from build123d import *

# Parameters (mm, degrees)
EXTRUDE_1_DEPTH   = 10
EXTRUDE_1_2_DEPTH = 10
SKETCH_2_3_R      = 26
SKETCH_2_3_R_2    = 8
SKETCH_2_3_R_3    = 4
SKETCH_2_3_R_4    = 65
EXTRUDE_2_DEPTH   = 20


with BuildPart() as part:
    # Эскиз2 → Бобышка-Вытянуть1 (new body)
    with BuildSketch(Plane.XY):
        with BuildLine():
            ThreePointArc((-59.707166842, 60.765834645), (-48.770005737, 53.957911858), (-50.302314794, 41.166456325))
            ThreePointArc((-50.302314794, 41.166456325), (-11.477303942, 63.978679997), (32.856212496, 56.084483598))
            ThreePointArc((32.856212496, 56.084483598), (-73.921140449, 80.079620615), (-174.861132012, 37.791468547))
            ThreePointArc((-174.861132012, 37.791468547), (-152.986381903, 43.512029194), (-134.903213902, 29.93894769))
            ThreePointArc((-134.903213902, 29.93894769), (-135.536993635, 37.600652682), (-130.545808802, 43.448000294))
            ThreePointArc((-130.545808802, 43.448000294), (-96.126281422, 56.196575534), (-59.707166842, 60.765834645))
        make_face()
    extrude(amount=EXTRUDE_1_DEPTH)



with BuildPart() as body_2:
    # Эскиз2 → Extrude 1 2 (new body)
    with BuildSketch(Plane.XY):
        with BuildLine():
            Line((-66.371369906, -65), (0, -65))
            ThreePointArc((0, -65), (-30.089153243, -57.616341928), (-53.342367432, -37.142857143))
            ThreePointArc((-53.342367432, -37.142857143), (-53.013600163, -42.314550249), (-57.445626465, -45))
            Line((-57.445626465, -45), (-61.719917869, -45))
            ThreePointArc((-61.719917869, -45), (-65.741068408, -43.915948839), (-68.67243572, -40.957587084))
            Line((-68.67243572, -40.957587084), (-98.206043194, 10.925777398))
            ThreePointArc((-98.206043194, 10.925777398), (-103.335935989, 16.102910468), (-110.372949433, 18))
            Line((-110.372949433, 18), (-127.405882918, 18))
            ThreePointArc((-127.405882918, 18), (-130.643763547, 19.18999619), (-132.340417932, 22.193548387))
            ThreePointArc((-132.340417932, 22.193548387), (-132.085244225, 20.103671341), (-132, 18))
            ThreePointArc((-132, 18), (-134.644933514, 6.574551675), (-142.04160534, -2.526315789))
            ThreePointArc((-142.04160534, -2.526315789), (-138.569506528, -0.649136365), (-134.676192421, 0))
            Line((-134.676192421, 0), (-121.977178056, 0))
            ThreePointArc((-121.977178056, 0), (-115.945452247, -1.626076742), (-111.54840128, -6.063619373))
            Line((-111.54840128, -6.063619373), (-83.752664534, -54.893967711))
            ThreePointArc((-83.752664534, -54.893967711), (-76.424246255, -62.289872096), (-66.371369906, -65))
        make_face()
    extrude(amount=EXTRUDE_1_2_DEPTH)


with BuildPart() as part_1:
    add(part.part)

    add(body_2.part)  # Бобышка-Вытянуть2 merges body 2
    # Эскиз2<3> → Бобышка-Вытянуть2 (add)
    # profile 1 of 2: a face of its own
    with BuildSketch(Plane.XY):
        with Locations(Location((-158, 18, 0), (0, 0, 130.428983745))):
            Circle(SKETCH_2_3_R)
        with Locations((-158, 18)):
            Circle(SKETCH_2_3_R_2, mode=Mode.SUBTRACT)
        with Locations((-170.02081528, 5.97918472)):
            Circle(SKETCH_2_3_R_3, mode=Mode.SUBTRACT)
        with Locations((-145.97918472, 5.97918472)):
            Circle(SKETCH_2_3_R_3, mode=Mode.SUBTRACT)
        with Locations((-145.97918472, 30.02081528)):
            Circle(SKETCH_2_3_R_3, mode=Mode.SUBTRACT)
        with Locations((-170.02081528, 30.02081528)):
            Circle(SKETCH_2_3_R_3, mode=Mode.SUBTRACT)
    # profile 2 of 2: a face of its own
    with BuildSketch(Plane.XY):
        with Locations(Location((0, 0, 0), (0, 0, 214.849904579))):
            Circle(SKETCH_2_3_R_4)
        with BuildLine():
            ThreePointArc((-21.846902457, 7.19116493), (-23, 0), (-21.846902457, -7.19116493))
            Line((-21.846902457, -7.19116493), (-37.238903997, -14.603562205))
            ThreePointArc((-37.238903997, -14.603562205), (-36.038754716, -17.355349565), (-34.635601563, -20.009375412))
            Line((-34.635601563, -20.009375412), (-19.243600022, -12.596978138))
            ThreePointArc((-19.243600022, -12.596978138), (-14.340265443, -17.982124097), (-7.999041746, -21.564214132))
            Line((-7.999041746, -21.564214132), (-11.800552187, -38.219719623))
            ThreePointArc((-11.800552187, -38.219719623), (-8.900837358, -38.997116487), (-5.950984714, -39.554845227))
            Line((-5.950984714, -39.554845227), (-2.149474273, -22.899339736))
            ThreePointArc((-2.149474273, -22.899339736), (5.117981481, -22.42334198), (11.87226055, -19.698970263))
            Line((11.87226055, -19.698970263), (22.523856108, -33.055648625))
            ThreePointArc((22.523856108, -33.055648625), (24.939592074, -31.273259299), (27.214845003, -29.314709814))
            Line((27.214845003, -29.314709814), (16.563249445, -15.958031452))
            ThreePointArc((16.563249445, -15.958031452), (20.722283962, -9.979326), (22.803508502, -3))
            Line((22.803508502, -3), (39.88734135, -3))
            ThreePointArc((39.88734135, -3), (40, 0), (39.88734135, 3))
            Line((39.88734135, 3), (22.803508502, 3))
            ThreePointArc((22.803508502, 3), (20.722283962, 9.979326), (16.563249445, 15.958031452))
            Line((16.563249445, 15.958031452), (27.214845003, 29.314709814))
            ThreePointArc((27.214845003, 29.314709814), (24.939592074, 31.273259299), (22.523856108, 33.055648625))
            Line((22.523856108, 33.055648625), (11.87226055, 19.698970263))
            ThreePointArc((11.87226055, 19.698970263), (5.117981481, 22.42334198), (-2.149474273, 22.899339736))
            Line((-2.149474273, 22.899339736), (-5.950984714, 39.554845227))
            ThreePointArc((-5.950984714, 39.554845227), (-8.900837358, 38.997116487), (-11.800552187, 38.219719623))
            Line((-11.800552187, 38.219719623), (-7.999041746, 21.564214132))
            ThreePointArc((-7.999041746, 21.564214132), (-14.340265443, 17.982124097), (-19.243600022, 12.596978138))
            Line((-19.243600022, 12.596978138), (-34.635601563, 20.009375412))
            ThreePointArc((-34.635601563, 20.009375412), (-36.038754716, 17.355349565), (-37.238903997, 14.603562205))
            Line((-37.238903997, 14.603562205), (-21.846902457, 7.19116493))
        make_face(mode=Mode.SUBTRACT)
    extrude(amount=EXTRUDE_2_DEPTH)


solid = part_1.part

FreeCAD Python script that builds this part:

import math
import FreeCAD as App
import Part
import Sketcher
from FreeCAD import Vector
Q = App.Units.Quantity

doc = App.newDocument("Part")
params = doc.addObject("Spreadsheet::Sheet", "Params")
for row, (alias, value) in enumerate([
    ("sketch1_radius", "12 mm"),
    ("sketch1_radius2", "65 mm"),
    ("sketch1_radius3", "180 mm"),
    ("sketch1_radius4", "26 mm"),
    ("sketch1_radius5", "10 mm"),
    ("pad1_length", "10 mm"),
    ("sketch2_radius", "65 mm"),
    ("sketch2_radius2", "5 mm"),
    ("sketch2_radius3", "8 mm"),
    ("sketch2_radius4", "14 mm"),
    ("sketch2_radius5", "26 mm"),
    ("pad2_length", "10 mm"),
    ("sketch3_diameter", "52 mm"),
    ("sketch3_diameter2", "8 mm"),
    ("sketch3_diameter3", "16 mm"),
    ("sketch3_diameter4", "130 mm"),
    ("sketch3_radius", "23 mm"),
    ("pad3_length", "20 mm"),
], start=1):
    params.set(f"A{row}", alias)
    params.set(f"B{row}", "=" + value)
    params.setAlias(f"B{row}", alias)

body = doc.addObject("PartDesign::Body", "Body")

sketch1 = body.newObject("Sketcher::SketchObject", "Sketch")
sketch1.AttachmentSupport = (doc.getObject("XY_Plane"), [""])
sketch1.MapMode = "FlatFace"
sketch1.addGeometry([
    Part.ArcOfCircle(Part.Circle(Vector(-60, 49, 0), Vector(0, 0, 1), 12), math.radians(-39), math.radians(91)),
    Part.ArcOfCircle(Part.Circle(Vector(0, 0, 0), Vector(0, 0, 1), 65), math.radians(60), math.radians(141)),
    Part.ArcOfCircle(Part.Circle(Vector(-58, -99, 0), Vector(0, 0, 1), 180), math.radians(60), math.radians(130)),
    Part.ArcOfCircle(Part.Circle(Vector(-158, 18, 0), Vector(0, 0, 1), 26), math.radians(27), math.radians(130)),
    Part.ArcOfCircle(Part.Circle(Vector(-126, 35, 0), Vector(0, 0, 1), 10), math.radians(117), math.radians(207)),
    Part.ArcOfCircle(Part.Circle(Vector(-58, -99, 0), Vector(0, 0, 1), 160), math.radians(91), math.radians(117)),
], False)
sketch1.addConstraint([
    Sketcher.Constraint("Tangent", 0, 1, 1, 2),
    Sketcher.Constraint("Tangent", 1, 1, 2, 1),
    Sketcher.Constraint("Tangent", 2, 2, 3, 2),
    Sketcher.Constraint("Tangent", 3, 1, 4, 2),
    Sketcher.Constraint("Tangent", 4, 1, 5, 2),
    Sketcher.Constraint("Tangent", 5, 1, 0, 2),
    Sketcher.Constraint("Coincident", 1, 3, -1, 1),
    Sketcher.Constraint("Coincident", 5, 3, 2, 3),
    Sketcher.Constraint("Radius", 0, Q("12 mm")),
    Sketcher.Constraint("Radius", 1, Q("65 mm")),
    Sketcher.Constraint("Radius", 2, Q("180 mm")),
    Sketcher.Constraint("Radius", 3, Q("26 mm")),
    Sketcher.Constraint("Radius", 4, Q("10 mm")),
    Sketcher.Constraint("Radius", 5, Q("160 mm")),
    Sketcher.Constraint("DistanceX", 3, 3, -1, 1, Q("158 mm")),
    Sketcher.Constraint("DistanceY", -1, 1, 3, 3, Q("18 mm")),
])
sketch1.setExpression("Constraints[8]", "Params.sketch1_radius")
sketch1.setExpression("Constraints[9]", "Params.sketch1_radius2")
sketch1.setExpression("Constraints[10]", "Params.sketch1_radius3")
sketch1.setExpression("Constraints[11]", "Params.sketch1_radius4")
sketch1.setExpression("Constraints[12]", "Params.sketch1_radius5")
pad1 = body.newObject("PartDesign::Pad", "Pad")
pad1.Profile = sketch1
pad1.setExpression("Length", "Params.pad1_length")
body2 = doc.addObject("PartDesign::Body", "Body001")

sketch2 = body2.newObject("Sketcher::SketchObject", "Sketch001")
sketch2.AttachmentSupport = (doc.getObject("XY_Plane001"), [""])
sketch2.MapMode = "FlatFace"
sketch2.addGeometry([
    Part.LineSegment(Vector(-66.4, -65, 0), Vector(0, -65, 0)),
    Part.ArcOfCircle(Part.Circle(Vector(0, 0, 0), Vector(0, 0, 1), 65), math.radians(-145), math.radians(-90)),
    Part.ArcOfCircle(Part.Circle(Vector(-57.4, -40, 0), Vector(0, 0, 1), 5), math.radians(-90), math.radians(35)),
    Part.LineSegment(Vector(-57.4, -45, 0), Vector(-61.7, -45, 0)),
    Part.ArcOfCircle(Part.Circle(Vector(-61.7, -37, 0), Vector(0, 0, 1), 8), math.radians(-150), math.radians(-90)),
    Part.LineSegment(Vector(-68.7, -41, 0), Vector(-98.2, 10.9, 0)),
    Part.ArcOfCircle(Part.Circle(Vector(-110.4, 4, 0), Vector(0, 0, 1), 14), math.radians(30), math.radians(90)),
    Part.LineSegment(Vector(-110.4, 18, 0), Vector(-127.4, 18, 0)),
    Part.ArcOfCircle(Part.Circle(Vector(-127.4, 23, 0), Vector(0, 0, 1), 5), math.radians(-171), math.radians(-90)),
    Part.ArcOfCircle(Part.Circle(Vector(-158, 18, 0), Vector(0, 0, 1), 26), math.radians(0), math.radians(9.28)),
    Part.ArcOfCircle(Part.Circle(Vector(-158, 18, 0), Vector(0, 0, 1), 26), math.radians(-52), math.radians(0)),
    Part.ArcOfCircle(Part.Circle(Vector(-134.7, -12, 0), Vector(0, 0, 1), 12), math.radians(90), math.radians(128)),
    Part.LineSegment(Vector(-134.7, 0, 0), Vector(-122, 0, 0)),
    Part.ArcOfCircle(Part.Circle(Vector(-122, -12, 0), Vector(0, 0, 1), 12), math.radians(30), math.radians(90)),
    Part.LineSegment(Vector(-111.5, -6.1, 0), Vector(-83.8, -54.9, 0)),
    Part.ArcOfCircle(Part.Circle(Vector(-66.4, -45, 0), Vector(0, 0, 1), 20), math.radians(-150), math.radians(-90)),
], False)
sketch2.addConstraint([
    Sketcher.Constraint("Tangent", 0, 2, 1, 2),
    Sketcher.Constraint("Tangent", 1, 1, 2, 2),
    Sketcher.Constraint("Tangent", 2, 1, 3, 1),
    Sketcher.Constraint("Tangent", 3, 2, 4, 2),
    Sketcher.Constraint("Tangent", 4, 1, 5, 1),
    Sketcher.Constraint("Tangent", 5, 2, 6, 1),
    Sketcher.Constraint("Tangent", 6, 2, 7, 1),
    Sketcher.Constraint("Tangent", 7, 2, 8, 2),
    Sketcher.Constraint("Tangent", 8, 1, 9, 2),
    Sketcher.Constraint("Tangent", 9, 1, 10, 2),
    Sketcher.Constraint("Tangent", 10, 1, 11, 2),
    Sketcher.Constraint("Tangent", 11, 1, 12, 1),
    Sketcher.Constraint("Tangent", 12, 2, 13, 2),
    Sketcher.Constraint("Tangent", 13, 1, 14, 1),
    Sketcher.Constraint("Tangent", 14, 2, 15, 1),
    Sketcher.Constraint("Tangent", 15, 2, 0, 1),
    Sketcher.Constraint("Horizontal", 0),
    Sketcher.Constraint("Horizontal", 3),
    Sketcher.Constraint("Horizontal", 7),
    Sketcher.Constraint("Horizontal", 12),
    Sketcher.Constraint("Coincident", 1, 3, -1, 1),
    Sketcher.Constraint("Equal", 2, 8),
    Sketcher.Constraint("Equal", 9, 10),
    Sketcher.Constraint("Equal", 11, 13),
    Sketcher.Constraint("PointOnObject", 11, 1, -1),
    Sketcher.Constraint("Parallel", 5, 14),
    Sketcher.Constraint("Horizontal", 15, 3, 2, 1),
    Sketcher.Constraint("Horizontal", 10, 3, 6, 2),
    Sketcher.Constraint("Horizontal", 7, 2, 9, 1),
    Sketcher.Constraint("Radius", 1, Q("65 mm")),
    Sketcher.Constraint("Radius", 2, Q("5 mm")),
    Sketcher.Constraint("Radius", 4, Q("8 mm")),
    Sketcher.Constraint("Radius", 6, Q("14 mm")),
    Sketcher.Constraint("Radius", 9, Q("26 mm")),
    Sketcher.Constraint("Radius", 11, Q("12 mm")),
    Sketcher.Constraint("Radius", 15, Q("20 mm")),
    Sketcher.Constraint("DistanceY", -1, 1, 6, 3, Q("4 mm")),
    Sketcher.Constraint("DistanceX", 9, 3, -1, 1, Q("158 mm")),
    Sketcher.Constraint("DistanceX", 0, 1, 0, 2, Q("66.37137 mm")),
    Sketcher.Constraint("DistanceX", 3, 2, 3, 1, Q("4.274291 mm")),
    Sketcher.Constraint("DistanceX", 13, 1, -1, 1, Q("111.548401 mm")),
])
sketch2.setExpression("Constraints[29]", "Params.sketch2_radius")
sketch2.setExpression("Constraints[30]", "Params.sketch2_radius2")
sketch2.setExpression("Constraints[31]", "Params.sketch2_radius3")
sketch2.setExpression("Constraints[32]", "Params.sketch2_radius4")
sketch2.setExpression("Constraints[33]", "Params.sketch2_radius5")
pad2 = body2.newObject("PartDesign::Pad", "Pad001")
pad2.Profile = sketch2
pad2.setExpression("Length", "Params.pad2_length")
body.AllowCompound = True
doc.recompute()

boolean = body.newObject("PartDesign::Boolean", "Boolean")
boolean.Type = "Fuse"
boolean.addObjects([body2])

sketch3 = body.newObject("Sketcher::SketchObject", "Sketch002")
sketch3.AttachmentSupport = (doc.getObject("XY_Plane"), [""])
sketch3.MapMode = "FlatFace"
sketch3.addGeometry([
    Part.Circle(Vector(-158, 18, 0), Vector(0, 0, 1), 26),
    Part.Circle(Vector(-146, 6, 0), Vector(0, 0, 1), 4),
    Part.Circle(Vector(-158, 18, 0), Vector(0, 0, 1), 8),
    Part.Circle(Vector(-146, 30, 0), Vector(0, 0, 1), 4),
    Part.Circle(Vector(-170, 6, 0), Vector(0, 0, 1), 4),
    Part.Circle(Vector(-170, 30, 0), Vector(0, 0, 1), 4),
    Part.Circle(Vector(0, 0, 0), Vector(0, 0, 1), 65),
    Part.ArcOfCircle(Part.Circle(Vector(0, 0, 0), Vector(0, 0, 1), 23), math.radians(162), math.radians(198)),
    Part.LineSegment(Vector(-21.8, 7.2, 0), Vector(-37.2, 14.6, 0)),
    Part.ArcOfCircle(Part.Circle(Vector(0, 0, 0), Vector(0, 0, 1), 40), math.radians(149.98), math.radians(158.59)),
    Part.LineSegment(Vector(-34.6, 20, 0), Vector(-19.2, 12.6, 0)),
    Part.ArcOfCircle(Part.Circle(Vector(0, 0, 0), Vector(0, 0, 1), 23), math.radians(110), math.radians(147)),
    Part.LineSegment(Vector(-8, 21.6, 0), Vector(-11.8, 38.2, 0)),
    Part.ArcOfCircle(Part.Circle(Vector(0, 0, 0), Vector(0, 0, 1), 40), math.radians(98.56), math.radians(107.16)),
    Part.LineSegment(Vector(-6, 39.6, 0), Vector(-2.1, 22.9, 0)),
    Part.ArcOfCircle(Part.Circle(Vector(0, 0, 0), Vector(0, 0, 1), 23), math.radians(59), math.radians(95)),
    Part.LineSegment(Vector(11.9, 19.7, 0), Vector(22.5, 33.1, 0)),
    Part.ArcOfCircle(Part.Circle(Vector(0, 0, 0), Vector(0, 0, 1), 40), math.radians(47.13), math.radians(55.73)),
    Part.LineSegment(Vector(27.2, 29.3, 0), Vector(16.6, 16, 0)),
    Part.ArcOfCircle(Part.Circle(Vector(0, 0, 0), Vector(0, 0, 1), 23), math.radians(7), math.radians(44)),
    Part.LineSegment(Vector(22.8, 3, 0), Vector(39.9, 3, 0)),
    Part.ArcOfCircle(Part.Circle(Vector(0, 0, 0), Vector(0, 0, 1), 40), math.radians(-4.3), math.radians(4.3)),
    Part.LineSegment(Vector(39.9, -3, 0), Vector(22.8, -3, 0)),
    Part.ArcOfCircle(Part.Circle(Vector(0, 0, 0), Vector(0, 0, 1), 23), math.radians(-44), math.radians(-7)),
    Part.LineSegment(Vector(16.6, -16, 0), Vector(27.2, -29.3, 0)),
    Part.ArcOfCircle(Part.Circle(Vector(0, 0, 0), Vector(0, 0, 1), 40), math.radians(-55.73), math.radians(-47.13)),
    Part.LineSegment(Vector(22.5, -33.1, 0), Vector(11.9, -19.7, 0)),
    Part.ArcOfCircle(Part.Circle(Vector(0, 0, 0), Vector(0, 0, 1), 23), math.radians(-95), math.radians(-59)),
    Part.LineSegment(Vector(-2.1, -22.9, 0), Vector(-6, -39.6, 0)),
    Part.ArcOfCircle(Part.Circle(Vector(0, 0, 0), Vector(0, 0, 1), 40), math.radians(-107.16), math.radians(-98.56)),
    Part.LineSegment(Vector(-11.8, -38.2, 0), Vector(-8, -21.6, 0)),
    Part.ArcOfCircle(Part.Circle(Vector(0, 0, 0), Vector(0, 0, 1), 23), math.radians(-147), math.radians(-110)),
    Part.LineSegment(Vector(-19.2, -12.6, 0), Vector(-34.6, -20, 0)),
    Part.ArcOfCircle(Part.Circle(Vector(0, 0, 0), Vector(0, 0, 1), 40), math.radians(-158.59), math.radians(-149.98)),
    Part.LineSegment(Vector(-37.2, -14.6, 0), Vector(-21.8, -7.2, 0)),
], False)
sketch3.addConstraint([
    Sketcher.Constraint("Coincident", 7, 1, 8, 1),
    Sketcher.Constraint("Coincident", 8, 2, 9, 2),
    Sketcher.Constraint("Coincident", 9, 1, 10, 1),
    Sketcher.Constraint("Coincident", 10, 2, 11, 2),
    Sketcher.Constraint("Coincident", 11, 1, 12, 1),
    Sketcher.Constraint("Coincident", 12, 2, 13, 2),
    Sketcher.Constraint("Coincident", 13, 1, 14, 1),
    Sketcher.Constraint("Coincident", 14, 2, 15, 2),
    Sketcher.Constraint("Coincident", 15, 1, 16, 1),
    Sketcher.Constraint("Coincident", 16, 2, 17, 2),
    Sketcher.Constraint("Coincident", 17, 1, 18, 1),
    Sketcher.Constraint("Coincident", 18, 2, 19, 2),
    Sketcher.Constraint("Coincident", 19, 1, 20, 1),
    Sketcher.Constraint("Coincident", 20, 2, 21, 2),
    Sketcher.Constraint("Coincident", 21, 1, 22, 1),
    Sketcher.Constraint("Coincident", 22, 2, 23, 2),
    Sketcher.Constraint("Coincident", 23, 1, 24, 1),
    Sketcher.Constraint("Coincident", 24, 2, 25, 2),
    Sketcher.Constraint("Coincident", 25, 1, 26, 1),
    Sketcher.Constraint("Coincident", 26, 2, 27, 2),
    Sketcher.Constraint("Coincident", 27, 1, 28, 1),
    Sketcher.Constraint("Coincident", 28, 2, 29, 2),
    Sketcher.Constraint("Coincident", 29, 1, 30, 1),
    Sketcher.Constraint("Coincident", 30, 2, 31, 2),
    Sketcher.Constraint("Coincident", 31, 1, 32, 1),
    Sketcher.Constraint("Coincident", 32, 2, 33, 2),
    Sketcher.Constraint("Coincident", 33, 1, 34, 1),
    Sketcher.Constraint("Coincident", 34, 2, 7, 2),
    Sketcher.Constraint("Horizontal", 20),
    Sketcher.Constraint("Horizontal", 22),
    Sketcher.Constraint("Coincident", 6, 3, -1, 1),
    Sketcher.Constraint("Coincident", 7, 3, -1, 1),
    Sketcher.Constraint("Coincident", 9, 3, -1, 1),
    Sketcher.Constraint("Coincident", 11, 3, -1, 1),
    Sketcher.Constraint("Coincident", 13, 3, -1, 1),
    Sketcher.Constraint("Coincident", 15, 3, -1, 1),
    Sketcher.Constraint("Coincident", 17, 3, -1, 1),
    Sketcher.Constraint("Coincident", 19, 3, -1, 1),
    Sketcher.Constraint("Coincident", 21, 3, -1, 1),
    Sketcher.Constraint("Coincident", 23, 3, -1, 1),
    Sketcher.Constraint("Coincident", 25, 3, -1, 1),
    Sketcher.Constraint("Coincident", 27, 3, -1, 1),
    Sketcher.Constraint("Coincident", 29, 3, -1, 1),
    Sketcher.Constraint("Coincident", 31, 3, -1, 1),
    Sketcher.Constraint("Coincident", 33, 3, -1, 1),
    Sketcher.Constraint("Coincident", 2, 3, 0, 3),
    Sketcher.Constraint("Equal", 1, 3),
    Sketcher.Constraint("Equal", 3, 4),
    Sketcher.Constraint("Equal", 4, 5),
    Sketcher.Constraint("Equal", 7, 11),
    Sketcher.Constraint("Equal", 9, 13),
    Sketcher.Constraint("Equal", 11, 15),
    Sketcher.Constraint("Equal", 13, 17),
    Sketcher.Constraint("Equal", 15, 19),
    Sketcher.Constraint("Equal", 17, 21),
    Sketcher.Constraint("Equal", 19, 23),
    Sketcher.Constraint("Equal", 21, 25),
    Sketcher.Constraint("Equal", 23, 27),
    Sketcher.Constraint("Equal", 25, 29),
    Sketcher.Constraint("Equal", 27, 31),
    Sketcher.Constraint("Equal", 29, 33),
    Sketcher.Constraint("Parallel", 8, 10),
    Sketcher.Constraint("Parallel", 12, 14),
    Sketcher.Constraint("Parallel", 16, 18),
    Sketcher.Constraint("Parallel", 24, 26),
    Sketcher.Constraint("Parallel", 28, 30),
    Sketcher.Constraint("Parallel", 32, 34),
    Sketcher.Constraint("Horizontal", 1, 3, 4, 3),
    Sketcher.Constraint("Horizontal", 3, 3, 5, 3),
    Sketcher.Constraint("Vertical", 1, 3, 3, 3),
    Sketcher.Constraint("Vertical", 4, 3, 5, 3),
    Sketcher.Constraint("Vertical", 20, 2, 21, 1),
    Sketcher.Constraint("Vertical", 18, 2, 23, 1),
    Sketcher.Constraint("Vertical", 17, 1, 24, 2),
    Sketcher.Constraint("Vertical", 16, 2, 25, 1),
    Sketcher.Constraint("Vertical", 14, 2, 27, 1),
    Sketcher.Constraint("Vertical", 13, 1, 28, 2),
    Sketcher.Constraint("Vertical", 12, 2, 29, 1),
    Sketcher.Constraint("Vertical", 10, 2, 31, 1),
    Sketcher.Constraint("Vertical", 9, 1, 32, 2),
    Sketcher.Constraint("Vertical", 8, 2, 33, 1),
    Sketcher.Constraint("Equal", 8, 10),
    Sketcher.Constraint("Equal", 10, 12),
    Sketcher.Constraint("Equal", 12, 14),
    Sketcher.Constraint("Equal", 14, 16),
    Sketcher.Constraint("Equal", 16, 18),
    Sketcher.Constraint("Diameter", 0, Q("52 mm")),
    Sketcher.Constraint("Diameter", 1, Q("8 mm")),
    Sketcher.Constraint("Diameter", 2, Q("16 mm")),
    Sketcher.Constraint("Diameter", 6, Q("130 mm")),
    Sketcher.Constraint("Radius", 7, Q("23 mm")),
    Sketcher.Constraint("Radius", 9, Q("40 mm")),
    Sketcher.Constraint("DistanceX", 0, 3, -1, 1, Q("158 mm")),
    Sketcher.Constraint("DistanceY", -1, 1, 0, 3, Q("18 mm")),
    Sketcher.Constraint("DistanceY", -1, 1, 19, 1, Q("3 mm")),
    Sketcher.Constraint("DistanceX", 8, 2, 7, 1, Q("15.392002 mm")),
    Sketcher.Constraint("DistanceX", 9, 1, -1, 1, Q("34.635602 mm")),
    Sketcher.Constraint("DistanceX", 29, 1, 23, 1, Q("28.363802 mm")),
    Sketcher.Constraint("DistanceX", 11, 1, -1, 1, Q("7.999042 mm")),
    Sketcher.Constraint("DistanceY", 1, 3, 3, 3, Q("24.041631 mm")),
    Sketcher.Constraint("DistanceX", 4, 3, 1, 3, Q("24.041631 mm")),
    Sketcher.Constraint("DistanceX", 1, 3, -1, 1, Q("145.979185 mm")),
    Sketcher.Constraint("DistanceY", -1, 1, 1, 3, Q("5.979185 mm")),
])
sketch3.setExpression("Constraints[86]", "Params.sketch3_diameter")
sketch3.setExpression("Constraints[87]", "Params.sketch3_diameter2")
sketch3.setExpression("Constraints[88]", "Params.sketch3_diameter3")
sketch3.setExpression("Constraints[89]", "Params.sketch3_diameter4")
sketch3.setExpression("Constraints[90]", "Params.sketch3_radius")
pad3 = body.newObject("PartDesign::Pad", "Pad002")
pad3.Profile = sketch3
pad3.setExpression("Length", "Params.pad3_length")

doc.recompute()
